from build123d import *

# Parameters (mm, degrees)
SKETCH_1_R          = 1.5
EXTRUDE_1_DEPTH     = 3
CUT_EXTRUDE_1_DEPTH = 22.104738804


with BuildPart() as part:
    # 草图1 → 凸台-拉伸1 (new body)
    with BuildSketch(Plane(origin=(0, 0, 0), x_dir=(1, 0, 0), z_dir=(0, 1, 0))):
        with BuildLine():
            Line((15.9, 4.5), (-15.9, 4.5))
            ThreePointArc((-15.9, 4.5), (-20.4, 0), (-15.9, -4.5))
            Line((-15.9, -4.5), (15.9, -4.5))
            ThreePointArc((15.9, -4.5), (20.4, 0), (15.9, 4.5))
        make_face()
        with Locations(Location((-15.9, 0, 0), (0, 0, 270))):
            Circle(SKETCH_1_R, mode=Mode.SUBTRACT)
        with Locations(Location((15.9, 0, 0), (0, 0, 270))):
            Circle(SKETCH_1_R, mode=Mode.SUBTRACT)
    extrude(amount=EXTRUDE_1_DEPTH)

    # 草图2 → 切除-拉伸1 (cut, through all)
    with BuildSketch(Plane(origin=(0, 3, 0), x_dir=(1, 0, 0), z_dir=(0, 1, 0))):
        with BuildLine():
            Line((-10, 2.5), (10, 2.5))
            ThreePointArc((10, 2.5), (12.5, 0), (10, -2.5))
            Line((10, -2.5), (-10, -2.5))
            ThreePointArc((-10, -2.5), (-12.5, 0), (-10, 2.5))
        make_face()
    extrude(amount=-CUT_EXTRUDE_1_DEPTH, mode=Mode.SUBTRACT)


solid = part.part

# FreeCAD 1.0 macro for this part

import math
import FreeCAD as App
import Part
import Sketcher

doc = App.newDocument("Part")
body = doc.addObject("PartDesign::Body", "Body")

sketch1 = doc.addObject("Sketcher::SketchObject", "Sketch")
body.addObject(sketch1)
sketch1.AttachmentSupport = (doc.XZ_Plane, [""])
sketch1.MapMode = "FlatFace"
sketch1.addGeometry(Part.LineSegment(App.Vector(15.9, -4.5, 0), App.Vector(-15.9, -4.5, 0)), False)
sketch1.addGeometry(Part.ArcOfCircle(Part.Circle(App.Vector(-15.9, 0, 0), App.Vector(0, 0, 1), 4.5), math.radians(90), math.radians(270)), False)
sketch1.addGeometry(Part.LineSegment(App.Vector(-15.9, 4.5, 0), App.Vector(15.9, 4.5, 0)), False)
sketch1.addGeometry(Part.ArcOfCircle(Part.Circle(App.Vector(15.9, 0, 0), App.Vector(0, 0, 1), 4.5), math.radians(-90), math.radians(90)), False)
sketch1.addGeometry(Part.Circle(App.Vector(-15.9, 0, 0), App.Vector(0, 0, 1), 1.5), False)
sketch1.addGeometry(Part.Circle(App.Vector(15.9, 0, 0), App.Vector(0, 0, 1), 1.5), False)
sketch1.addConstraint(Sketcher.Constraint("Tangent", 0, 2, 1, 2))
sketch1.addConstraint(Sketcher.Constraint("Tangent", 1, 1, 2, 1))
sketch1.addConstraint(Sketcher.Constraint("Tangent", 2, 2, 3, 2))
sketch1.addConstraint(Sketcher.Constraint("Tangent", 3, 1, 0, 1))
sketch1.addConstraint(Sketcher.Constraint("Horizontal", 0))
sketch1.addConstraint(Sketcher.Constraint("Horizontal", 2))
sketch1.addConstraint(Sketcher.Constraint("Coincident", 4, 3, 1, 3))
sketch1.addConstraint(Sketcher.Constraint("Coincident", 5, 3, 3, 3))
sketch1.addConstraint(Sketcher.Constraint("Equal", 4, 5))
sketch1.addConstraint(Sketcher.Constraint("Symmetric", 1, 3, 3, 3, -1, 1))
sketch1.addConstraint(Sketcher.Constraint("Diameter", 4, 3.0))
sketch1.addConstraint(Sketcher.Constraint("Radius", 1, 4.5))
sketch1.addConstraint(Sketcher.Constraint("DistanceX", 0, 2, 0, 1, 31.8))
pad1 = doc.addObject("PartDesign::Pad", "Pad")
body.addObject(pad1)
pad1.Profile = sketch1
pad1.Length = 3
pad1.Reversed = True

sketch2 = doc.addObject("Sketcher::SketchObject", "Sketch001")
body.addObject(sketch2)
sketch2.AttachmentSupport = (doc.XZ_Plane, [""])
sketch2.MapMode = "FlatFace"
sketch2.AttachmentOffset = App.Placement(App.Vector(0, 0, -3), App.Rotation())
sketch2.addGeometry(Part.LineSegment(App.Vector(10, -2.5, 0), App.Vector(-10, -2.5, 0)), False)
sketch2.addGeometry(Part.ArcOfCircle(Part.Circle(App.Vector(-10, 0, 0), App.Vector(0, 0, 1), 2.5), math.radians(90), math.radians(270)), False)
sketch2.addGeometry(Part.LineSegment(App.Vector(-10, 2.5, 0), App.Vector(10, 2.5, 0)), False)
sketch2.addGeometry(Part.ArcOfCircle(Part.Circle(App.Vector(10, 0, 0), App.Vector(0, 0, 1), 2.5), math.radians(-90), math.radians(90)), False)
sketch2.addConstraint(Sketcher.Constraint("Tangent", 0, 2, 1, 2))
sketch2.addConstraint(Sketcher.Constraint("Tangent", 1, 1, 2, 1))
sketch2.addConstraint(Sketcher.Constraint("Tangent", 2, 2, 3, 2))
sketch2.addConstraint(Sketcher.Constraint("Tangent", 3, 1, 0, 1))
sketch2.addConstraint(Sketcher.Constraint("Horizontal", 0))
sketch2.addConstraint(Sketcher.Constraint("Horizontal", 2))
sketch2.addConstraint(Sketcher.Constraint("Symmetric", 1, 3, 3, 3, -1, 1))
sketch2.addConstraint(Sketcher.Constraint("Radius", 1, 2.5))
sketch2.addConstraint(Sketcher.Constraint("DistanceX", 0, 2, 0, 1, 20.0))
pocket1 = doc.addObject("PartDesign::Pocket", "Pocket")
body.addObject(pocket1)
pocket1.Profile = sketch2
pocket1.Type = "ThroughAll"
pocket1.Reversed = True

doc.recompute()
